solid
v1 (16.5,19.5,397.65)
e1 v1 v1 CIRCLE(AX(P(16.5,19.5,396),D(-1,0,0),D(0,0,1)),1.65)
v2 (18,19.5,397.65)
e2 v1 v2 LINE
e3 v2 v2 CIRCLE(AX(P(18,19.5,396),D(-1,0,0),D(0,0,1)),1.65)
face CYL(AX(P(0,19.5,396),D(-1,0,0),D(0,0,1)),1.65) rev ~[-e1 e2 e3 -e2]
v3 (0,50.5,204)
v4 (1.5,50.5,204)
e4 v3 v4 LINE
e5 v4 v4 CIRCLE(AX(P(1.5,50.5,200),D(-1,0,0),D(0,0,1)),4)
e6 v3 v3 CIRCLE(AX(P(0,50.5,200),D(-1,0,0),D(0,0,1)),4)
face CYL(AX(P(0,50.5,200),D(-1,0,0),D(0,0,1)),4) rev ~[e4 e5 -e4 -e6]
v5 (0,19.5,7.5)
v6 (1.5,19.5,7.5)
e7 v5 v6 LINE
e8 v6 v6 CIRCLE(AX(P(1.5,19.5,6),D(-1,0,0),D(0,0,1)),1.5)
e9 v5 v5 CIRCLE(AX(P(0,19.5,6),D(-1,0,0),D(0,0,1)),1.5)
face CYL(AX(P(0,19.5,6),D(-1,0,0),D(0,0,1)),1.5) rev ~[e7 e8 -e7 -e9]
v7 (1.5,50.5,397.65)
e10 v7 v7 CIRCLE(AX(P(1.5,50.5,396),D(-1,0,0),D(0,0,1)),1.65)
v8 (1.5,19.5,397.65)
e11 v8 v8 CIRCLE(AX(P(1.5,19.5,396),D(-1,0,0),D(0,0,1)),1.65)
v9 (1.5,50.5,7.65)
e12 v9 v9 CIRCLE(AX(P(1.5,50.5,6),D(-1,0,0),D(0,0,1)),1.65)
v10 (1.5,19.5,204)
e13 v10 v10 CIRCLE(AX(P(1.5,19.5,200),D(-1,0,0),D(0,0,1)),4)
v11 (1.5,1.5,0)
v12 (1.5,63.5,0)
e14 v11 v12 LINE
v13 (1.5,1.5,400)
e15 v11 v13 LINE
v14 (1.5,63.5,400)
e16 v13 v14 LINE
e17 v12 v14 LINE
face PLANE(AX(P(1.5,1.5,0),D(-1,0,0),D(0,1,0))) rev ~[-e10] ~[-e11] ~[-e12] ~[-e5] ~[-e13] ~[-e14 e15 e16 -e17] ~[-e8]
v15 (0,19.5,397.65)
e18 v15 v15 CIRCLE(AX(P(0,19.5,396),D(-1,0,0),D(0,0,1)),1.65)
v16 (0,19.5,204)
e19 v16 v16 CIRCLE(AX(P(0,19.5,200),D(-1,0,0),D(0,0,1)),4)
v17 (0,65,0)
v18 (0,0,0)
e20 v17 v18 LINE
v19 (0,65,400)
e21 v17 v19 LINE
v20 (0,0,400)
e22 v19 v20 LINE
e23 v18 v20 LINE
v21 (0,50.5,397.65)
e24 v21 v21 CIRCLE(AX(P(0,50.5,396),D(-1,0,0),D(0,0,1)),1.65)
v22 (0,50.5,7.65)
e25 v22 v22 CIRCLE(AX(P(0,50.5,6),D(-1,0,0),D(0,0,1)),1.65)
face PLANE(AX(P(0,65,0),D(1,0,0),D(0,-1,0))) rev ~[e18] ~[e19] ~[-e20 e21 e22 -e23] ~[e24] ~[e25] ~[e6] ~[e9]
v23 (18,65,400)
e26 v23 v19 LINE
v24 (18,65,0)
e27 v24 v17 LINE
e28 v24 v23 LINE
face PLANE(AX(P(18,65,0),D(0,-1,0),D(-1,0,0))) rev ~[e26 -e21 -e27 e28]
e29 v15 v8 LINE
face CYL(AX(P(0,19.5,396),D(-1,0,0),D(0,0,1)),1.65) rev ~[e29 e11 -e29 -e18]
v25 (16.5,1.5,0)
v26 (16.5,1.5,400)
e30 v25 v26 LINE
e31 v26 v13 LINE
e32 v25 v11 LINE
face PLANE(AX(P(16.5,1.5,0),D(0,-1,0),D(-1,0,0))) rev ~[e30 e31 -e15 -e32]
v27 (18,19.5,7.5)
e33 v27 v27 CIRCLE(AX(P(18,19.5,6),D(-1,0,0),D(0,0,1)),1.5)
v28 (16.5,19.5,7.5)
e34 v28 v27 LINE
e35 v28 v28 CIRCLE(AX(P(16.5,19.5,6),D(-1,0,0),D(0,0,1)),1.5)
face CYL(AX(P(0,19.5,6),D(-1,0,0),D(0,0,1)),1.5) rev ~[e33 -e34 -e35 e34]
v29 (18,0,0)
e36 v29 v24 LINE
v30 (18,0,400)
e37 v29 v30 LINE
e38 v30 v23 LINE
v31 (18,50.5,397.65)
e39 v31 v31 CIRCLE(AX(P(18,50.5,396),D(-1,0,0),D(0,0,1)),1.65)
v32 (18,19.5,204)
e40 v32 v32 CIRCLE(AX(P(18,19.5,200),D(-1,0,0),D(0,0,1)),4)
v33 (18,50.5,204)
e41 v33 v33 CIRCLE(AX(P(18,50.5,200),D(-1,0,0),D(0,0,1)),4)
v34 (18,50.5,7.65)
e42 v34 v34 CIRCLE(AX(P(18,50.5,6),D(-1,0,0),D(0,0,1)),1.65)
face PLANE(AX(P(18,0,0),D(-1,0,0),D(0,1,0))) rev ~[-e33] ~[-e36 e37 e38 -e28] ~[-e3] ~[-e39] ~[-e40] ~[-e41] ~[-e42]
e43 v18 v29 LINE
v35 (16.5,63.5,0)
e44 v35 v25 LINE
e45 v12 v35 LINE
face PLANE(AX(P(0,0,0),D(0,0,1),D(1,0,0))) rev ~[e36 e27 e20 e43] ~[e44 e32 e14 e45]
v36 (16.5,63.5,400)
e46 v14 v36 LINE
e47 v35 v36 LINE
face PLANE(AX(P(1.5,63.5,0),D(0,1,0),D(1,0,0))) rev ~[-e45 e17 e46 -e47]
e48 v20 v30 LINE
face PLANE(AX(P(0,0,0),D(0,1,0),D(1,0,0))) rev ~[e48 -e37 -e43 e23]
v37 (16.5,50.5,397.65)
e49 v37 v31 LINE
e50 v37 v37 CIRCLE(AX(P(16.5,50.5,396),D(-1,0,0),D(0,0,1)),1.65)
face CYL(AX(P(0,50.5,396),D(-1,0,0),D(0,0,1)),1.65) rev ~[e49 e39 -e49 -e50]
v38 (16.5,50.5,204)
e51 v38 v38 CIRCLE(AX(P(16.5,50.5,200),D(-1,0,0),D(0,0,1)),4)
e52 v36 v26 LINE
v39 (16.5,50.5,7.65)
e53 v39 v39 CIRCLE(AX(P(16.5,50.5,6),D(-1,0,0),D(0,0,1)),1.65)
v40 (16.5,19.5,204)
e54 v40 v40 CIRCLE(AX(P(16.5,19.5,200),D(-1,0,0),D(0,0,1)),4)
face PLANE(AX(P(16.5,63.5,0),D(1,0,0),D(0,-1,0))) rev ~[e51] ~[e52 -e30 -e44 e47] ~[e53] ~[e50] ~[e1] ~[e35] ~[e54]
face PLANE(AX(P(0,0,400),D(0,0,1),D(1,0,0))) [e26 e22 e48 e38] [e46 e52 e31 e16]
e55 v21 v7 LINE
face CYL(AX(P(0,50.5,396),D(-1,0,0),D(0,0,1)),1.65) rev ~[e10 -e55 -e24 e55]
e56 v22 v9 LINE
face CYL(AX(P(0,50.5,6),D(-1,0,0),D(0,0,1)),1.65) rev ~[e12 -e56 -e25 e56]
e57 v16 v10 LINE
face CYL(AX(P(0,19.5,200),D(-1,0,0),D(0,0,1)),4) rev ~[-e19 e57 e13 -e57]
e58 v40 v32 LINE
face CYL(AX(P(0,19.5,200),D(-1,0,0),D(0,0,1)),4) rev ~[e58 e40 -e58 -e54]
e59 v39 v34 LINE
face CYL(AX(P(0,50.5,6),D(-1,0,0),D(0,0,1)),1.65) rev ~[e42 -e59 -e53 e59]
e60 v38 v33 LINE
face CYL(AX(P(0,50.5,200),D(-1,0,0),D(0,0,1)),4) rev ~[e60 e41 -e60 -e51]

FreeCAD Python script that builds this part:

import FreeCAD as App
import Part
import Sketcher
from FreeCAD import Vector

doc = App.newDocument("Part")
body = doc.addObject("PartDesign::Body", "Body")

# Sketch on XY plane
sketch1 = body.newObject("Sketcher::SketchObject", "Sketch")
sketch1.AttachmentSupport = (doc.getObject("XY_Plane"), [""])
sketch1.MapMode = "FlatFace"
sketch1.addGeometry(Part.LineSegment(Vector(0, 65, 0), Vector(0, 0, 0)), False)
sketch1.addGeometry(Part.LineSegment(Vector(0, 0, 0), Vector(18, 0, 0)), False)
sketch1.addGeometry(Part.LineSegment(Vector(18, 0, 0), Vector(18, 65, 0)), False)
sketch1.addGeometry(Part.LineSegment(Vector(18, 65, 0), Vector(0, 65, 0)), False)
sketch1.addGeometry(Part.LineSegment(Vector(2, 2, 0), Vector(2, 64, 0)), False)
sketch1.addGeometry(Part.LineSegment(Vector(2, 64, 0), Vector(16, 64, 0)), False)
sketch1.addGeometry(Part.LineSegment(Vector(16, 64, 0), Vector(16, 2, 0)), False)
sketch1.addGeometry(Part.LineSegment(Vector(16, 2, 0), Vector(2, 2, 0)), False)
sketch1.addConstraint(Sketcher.Constraint("Coincident", 0, 2, 1, 1))
sketch1.addConstraint(Sketcher.Constraint("Coincident", 1, 2, 2, 1))
sketch1.addConstraint(Sketcher.Constraint("Coincident", 2, 2, 3, 1))
sketch1.addConstraint(Sketcher.Constraint("Coincident", 3, 2, 0, 1))
sketch1.addConstraint(Sketcher.Constraint("Coincident", 4, 2, 5, 1))
sketch1.addConstraint(Sketcher.Constraint("Coincident", 5, 2, 6, 1))
sketch1.addConstraint(Sketcher.Constraint("Coincident", 6, 2, 7, 1))
sketch1.addConstraint(Sketcher.Constraint("Coincident", 7, 2, 4, 1))
sketch1.addConstraint(Sketcher.Constraint("Vertical", 0))
sketch1.addConstraint(Sketcher.Constraint("Horizontal", 1))
sketch1.addConstraint(Sketcher.Constraint("Vertical", 2))
sketch1.addConstraint(Sketcher.Constraint("Horizontal", 3))
sketch1.addConstraint(Sketcher.Constraint("Vertical", 4))
sketch1.addConstraint(Sketcher.Constraint("Horizontal", 5))
sketch1.addConstraint(Sketcher.Constraint("Vertical", 6))
sketch1.addConstraint(Sketcher.Constraint("Horizontal", 7))
sketch1.addConstraint(Sketcher.Constraint("Coincident", 0, 2, -1, 1))
sketch1.addConstraint(Sketcher.Constraint("DistanceX", 1, 1, 1, 2, 18.0))
sketch1.addConstraint(Sketcher.Constraint("DistanceY", 0, 2, 0, 1, 65.0))
sketch1.addConstraint(Sketcher.Constraint("DistanceX", -1, 1, 4, 2, 1.5))
sketch1.addConstraint(Sketcher.Constraint("DistanceY", -1, 1, 6, 2, 1.5))
sketch1.addConstraint(Sketcher.Constraint("DistanceY", 4, 2, 3, 2, 1.5))
sketch1.addConstraint(Sketcher.Constraint("DistanceX", 5, 2, 2, 2, 1.5))
pad1 = body.newObject("PartDesign::Pad", "Pad")
pad1.Profile = sketch1
pad1.Length = 400

# Sketch on YZ plane
sketch2 = body.newObject("Sketcher::SketchObject", "Sketch001")
sketch2.AttachmentSupport = (doc.getObject("YZ_Plane"), [""])
sketch2.MapMode = "FlatFace"
sketch2.addGeometry(Part.Circle(Vector(50.5, 6, 0), Vector(0, 0, 1), 1.6), False)
sketch2.addGeometry(Part.Circle(Vector(19.5, 6, 0), Vector(0, 0, 1), 1.5), False)
sketch2.addGeometry(Part.Circle(Vector(19.5, 396, 0), Vector(0, 0, 1), 1.6), False)
sketch2.addGeometry(Part.Circle(Vector(50.5, 396, 0), Vector(0, 0, 1), 1.6), False)
sketch2.addGeometry(Part.Circle(Vector(50.5, 200, 0), Vector(0, 0, 1), 4), False)
sketch2.addGeometry(Part.Circle(Vector(19.5, 200, 0), Vector(0, 0, 1), 4), False)
sketch2.addConstraint(Sketcher.Constraint("Equal", 0, 2))
sketch2.addConstraint(Sketcher.Constraint("Equal", 2, 3))
sketch2.addConstraint(Sketcher.Constraint("Equal", 4, 5))
sketch2.addConstraint(Sketcher.Constraint("Horizontal", 0, 3, 1, 3))
sketch2.addConstraint(Sketcher.Constraint("Horizontal", 2, 3, 3, 3))
sketch2.addConstraint(Sketcher.Constraint("Horizontal", 4, 3, 5, 3))
sketch2.addConstraint(Sketcher.Constraint("Vertical", 1, 3, 2, 3))
sketch2.addConstraint(Sketcher.Constraint("Vertical", 0, 3, 3, 3))
sketch2.addConstraint(Sketcher.Constraint("Vertical", 3, 3, 4, 3))
sketch2.addConstraint(Sketcher.Constraint("Vertical", 2, 3, 5, 3))
sketch2.addConstraint(Sketcher.Constraint("Diameter", 4, 8.0))
sketch2.addConstraint(Sketcher.Constraint("Diameter", 1, 3.0))
sketch2.addConstraint(Sketcher.Constraint("Diameter", 0, 3.3))
sketch2.addConstraint(Sketcher.Constraint("DistanceY", -1, 1, 0, 3, 6.0))
sketch2.addConstraint(Sketcher.Constraint("DistanceY", -1, 1, 2, 3, 396.0))
sketch2.addConstraint(Sketcher.Constraint("DistanceY", -1, 1, 4, 3, 200.0))
sketch2.addConstraint(Sketcher.Constraint("DistanceX", 1, 3, 0, 3, 31.0))
sketch2.addConstraint(Sketcher.Constraint("DistanceX", -1, 1, 0, 3, 50.5))
pocket1 = body.newObject("PartDesign::Pocket", "Pocket")
pocket1.Profile = sketch2
pocket1.Length = 20
pocket1.Reversed = True

doc.recompute()
